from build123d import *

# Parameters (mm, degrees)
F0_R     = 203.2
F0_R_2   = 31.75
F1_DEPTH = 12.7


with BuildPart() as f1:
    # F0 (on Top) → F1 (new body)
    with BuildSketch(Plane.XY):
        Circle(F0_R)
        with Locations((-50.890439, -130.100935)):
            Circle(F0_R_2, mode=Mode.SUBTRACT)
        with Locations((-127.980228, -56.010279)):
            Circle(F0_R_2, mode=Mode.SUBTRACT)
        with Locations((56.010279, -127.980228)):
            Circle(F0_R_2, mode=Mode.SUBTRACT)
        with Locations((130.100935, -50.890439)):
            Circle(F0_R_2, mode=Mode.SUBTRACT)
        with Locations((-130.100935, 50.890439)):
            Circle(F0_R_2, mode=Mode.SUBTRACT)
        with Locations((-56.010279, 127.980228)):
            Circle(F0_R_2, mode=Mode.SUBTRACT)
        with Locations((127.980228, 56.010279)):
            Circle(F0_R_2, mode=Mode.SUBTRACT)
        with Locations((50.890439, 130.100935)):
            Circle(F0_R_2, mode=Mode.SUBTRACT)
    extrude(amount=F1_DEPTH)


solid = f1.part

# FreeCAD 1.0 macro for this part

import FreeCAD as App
import Part
import Sketcher

V = App.Vector
Q = App.Units.Quantity

doc = App.newDocument("Part")
body = doc.addObject("PartDesign::Body", "Body")

sketch1 = doc.addObject("Sketcher::SketchObject", "Sketch")
body.addObject(sketch1)
sketch1.AttachmentSupport = (doc.XY_Plane, [""])
sketch1.MapMode = "FlatFace"
sketch1.addGeometry([
    Part.Circle(V(0, 0, 0), V(0, 0, 1), 203),
    Part.Circle(V(-51, -130, 0), V(0, 0, 1), 32),
    Part.Circle(V(-128, -56, 0), V(0, 0, 1), 32),
    Part.Circle(V(56, -128, 0), V(0, 0, 1), 32),
    Part.Circle(V(130, -51, 0), V(0, 0, 1), 32),
    Part.Circle(V(-130, 51, 0), V(0, 0, 1), 32),
    Part.Circle(V(-56, 128, 0), V(0, 0, 1), 32),
    Part.Circle(V(128, 56, 0), V(0, 0, 1), 32),
    Part.Circle(V(51, 130, 0), V(0, 0, 1), 32),
], False)
sketch1.addConstraint([
    Sketcher.Constraint("Coincident", 0, 3, -1, 1),
    Sketcher.Constraint("Equal", 1, 2),
    Sketcher.Constraint("Equal", 2, 3),
    Sketcher.Constraint("Equal", 3, 4),
    Sketcher.Constraint("Equal", 4, 5),
    Sketcher.Constraint("Equal", 5, 6),
    Sketcher.Constraint("Equal", 6, 7),
    Sketcher.Constraint("Equal", 7, 8),
    Sketcher.Constraint("Symmetric", 4, 3, 5, 3, -1, 1),
    Sketcher.Constraint("Symmetric", 3, 3, 6, 3, -1, 1),
    Sketcher.Constraint("Symmetric", 2, 3, 7, 3, -1, 1),
    Sketcher.Constraint("Symmetric", 1, 3, 8, 3, -1, 1),
    Sketcher.Constraint("Diameter", 0, Q("16 in")),
    Sketcher.Constraint("Diameter", 1, Q("2.5 in")),
    Sketcher.Constraint("DistanceX", 1, 3, -1, 1, 50.890439),
    Sketcher.Constraint("DistanceY", 2, 3, -1, 1, 56.010279),
    Sketcher.Constraint("DistanceX", -1, 1, 3, 3, 56.010279),
    Sketcher.Constraint("DistanceY", 4, 3, -1, 1, 50.890439),
    Sketcher.Constraint("DistanceX", 2, 3, 1, 3, 77.089789),
    Sketcher.Constraint("DistanceY", 3, 3, 2, 3, 71.969949),
    Sketcher.Constraint("DistanceX", 5, 3, 4, 3, 260.20187),
    Sketcher.Constraint("DistanceY", 1, 3, -1, 1, 130.100935),
])
pad1 = doc.addObject("PartDesign::Pad", "Pad")
body.addObject(pad1)
pad1.Profile = sketch1
pad1.Length = Q("0.5 in")

doc.recompute()
